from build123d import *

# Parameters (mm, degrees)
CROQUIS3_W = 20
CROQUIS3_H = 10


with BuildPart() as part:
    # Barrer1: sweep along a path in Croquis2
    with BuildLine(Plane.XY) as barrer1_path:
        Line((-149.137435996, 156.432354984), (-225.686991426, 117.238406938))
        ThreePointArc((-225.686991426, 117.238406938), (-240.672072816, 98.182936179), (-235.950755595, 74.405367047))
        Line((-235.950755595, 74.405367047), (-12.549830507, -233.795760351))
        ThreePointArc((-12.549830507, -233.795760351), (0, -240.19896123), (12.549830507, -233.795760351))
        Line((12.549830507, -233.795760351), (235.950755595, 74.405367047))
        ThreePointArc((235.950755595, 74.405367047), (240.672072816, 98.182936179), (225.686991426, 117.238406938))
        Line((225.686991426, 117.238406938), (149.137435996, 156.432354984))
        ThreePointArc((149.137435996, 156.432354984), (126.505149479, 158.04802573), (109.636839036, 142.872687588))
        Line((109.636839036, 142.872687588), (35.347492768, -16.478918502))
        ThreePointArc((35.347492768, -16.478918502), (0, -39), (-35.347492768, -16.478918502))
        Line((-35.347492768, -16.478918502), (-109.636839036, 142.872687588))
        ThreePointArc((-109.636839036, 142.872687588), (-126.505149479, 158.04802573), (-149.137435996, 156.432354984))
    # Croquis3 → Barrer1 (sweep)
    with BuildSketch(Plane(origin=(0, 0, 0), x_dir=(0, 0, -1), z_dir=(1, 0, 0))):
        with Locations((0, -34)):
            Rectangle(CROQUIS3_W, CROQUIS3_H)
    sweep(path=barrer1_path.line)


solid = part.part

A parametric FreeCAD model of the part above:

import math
import FreeCAD as App
import Part
import Sketcher
from FreeCAD import Vector


def add_polygon(sketch, points):
    """Adds a closed chain of lines whose ends are joined by coincident constraints."""
    first, n = sketch.GeometryCount, len(points)
    for a, b in zip(points, points[1:] + points[:1]):
        sketch.addGeometry(Part.LineSegment(App.Vector(*a, 0), App.Vector(*b, 0)), False)
    for i in range(n):
        sketch.addConstraint(Sketcher.Constraint("Coincident", first + i, 2, first + (i + 1) % n, 1))

doc = App.newDocument("Part")
body = doc.addObject("PartDesign::Body", "Body")

sketch1 = body.newObject("Sketcher::SketchObject", "Sketch")
sketch1.AttachmentSupport = (doc.getObject("YZ_Plane"), [""])
sketch1.MapMode = "FlatFace"
add_polygon(sketch1, [(-29, 10), (-39, 10), (-39, -10), (-29, -10)])
sketch1.addConstraint([
    Sketcher.Constraint("Horizontal", 0),
    Sketcher.Constraint("Vertical", 1),
    Sketcher.Constraint("Horizontal", 2),
    Sketcher.Constraint("Vertical", 3),
    Sketcher.Constraint("DistanceX", 0, 2, 0, 1, 10.0),
    Sketcher.Constraint("DistanceY", 1, 2, 1, 1, 20.0),
    Sketcher.Constraint("DistanceX", 0, 2, -1, 1, 39.0),
    Sketcher.Constraint("DistanceY", -1, 1, 0, 2, 10.0),
])

sketch2 = body.newObject("Sketcher::SketchObject", "Sketch001")
sketch2.AttachmentSupport = (doc.getObject("XY_Plane"), [""])
sketch2.MapMode = "FlatFace"
sketch2.addGeometry([
    Part.LineSegment(Vector(-149, 156, 0), Vector(-226, 117, 0)),
    Part.ArcOfCircle(Part.Circle(Vector(-212, 91, 0), Vector(0, 0, 1), 29), math.radians(117), math.radians(216)),
    Part.LineSegment(Vector(-236, 74, 0), Vector(-13, -234, 0)),
    Part.ArcOfCircle(Part.Circle(Vector(0, -225, 0), Vector(0, 0, 1), 16), math.radians(-144), math.radians(-36)),
    Part.LineSegment(Vector(13, -234, 0), Vector(236, 74, 0)),
    Part.ArcOfCircle(Part.Circle(Vector(212, 91, 0), Vector(0, 0, 1), 29), math.radians(-36), math.radians(63)),
    Part.LineSegment(Vector(226, 117, 0), Vector(149, 156, 0)),
    Part.ArcOfCircle(Part.Circle(Vector(136, 131, 0), Vector(0, 0, 1), 29), math.radians(63), math.radians(155)),
    Part.LineSegment(Vector(110, 143, 0), Vector(35, -16, 0)),
    Part.ArcOfCircle(Part.Circle(Vector(0, 0, 0), Vector(0, 0, 1), 39), math.radians(-155), math.radians(-25)),
    Part.LineSegment(Vector(-35, -16, 0), Vector(-110, 143, 0)),
    Part.ArcOfCircle(Part.Circle(Vector(-136, 131, 0), Vector(0, 0, 1), 29), math.radians(25), math.radians(117)),
], False)
sketch2.addConstraint([
    Sketcher.Constraint("Tangent", 0, 2, 1, 1),
    Sketcher.Constraint("Tangent", 1, 2, 2, 1),
    Sketcher.Constraint("Tangent", 2, 2, 3, 1),
    Sketcher.Constraint("Tangent", 3, 2, 4, 1),
    Sketcher.Constraint("Tangent", 4, 2, 5, 1),
    Sketcher.Constraint("Tangent", 5, 2, 6, 1),
    Sketcher.Constraint("Tangent", 6, 2, 7, 1),
    Sketcher.Constraint("Tangent", 7, 2, 8, 1),
    Sketcher.Constraint("Tangent", 8, 2, 9, 2),
    Sketcher.Constraint("Tangent", 9, 1, 10, 1),
    Sketcher.Constraint("Tangent", 10, 2, 11, 1),
    Sketcher.Constraint("Tangent", 11, 2, 0, 1),
    Sketcher.Constraint("Coincident", 9, 3, -1, 1),
    Sketcher.Constraint("Equal", 1, 5),
    Sketcher.Constraint("Equal", 5, 7),
    Sketcher.Constraint("Equal", 7, 11),
    Sketcher.Constraint("Symmetric", 1, 3, 5, 3, -2),
    Sketcher.Constraint("Symmetric", 7, 3, 11, 3, -2),
    Sketcher.Constraint("PointOnObject", 3, 3, -2),
    Sketcher.Constraint("Radius", 1, 29.0),
    Sketcher.Constraint("Radius", 9, 39.0),
    Sketcher.Constraint("Radius", 3, 15.5),
    Sketcher.Constraint("Distance", 0, 86.0),
    Sketcher.Constraint("DistanceX", 1, 3, 7, 3, 348.3913),
    Sketcher.Constraint("DistanceY", 2, 2, 3, 3, 9.096799),
    Sketcher.Constraint("Distance", 2, 380.651952),
    Sketcher.Constraint("DistanceY", 3, 3, -1, 1, 224.698961),
])
doc.recompute()

additivepipe = body.newObject("PartDesign::AdditivePipe", "AdditivePipe")
additivepipe.Profile = sketch1
additivepipe.Spine = (sketch2, ["Edge1", "Edge2", "Edge3", "Edge4", "Edge5", "Edge6", "Edge7", "Edge8", "Edge9", "Edge10", "Edge11", "Edge12"])

doc.recompute()
